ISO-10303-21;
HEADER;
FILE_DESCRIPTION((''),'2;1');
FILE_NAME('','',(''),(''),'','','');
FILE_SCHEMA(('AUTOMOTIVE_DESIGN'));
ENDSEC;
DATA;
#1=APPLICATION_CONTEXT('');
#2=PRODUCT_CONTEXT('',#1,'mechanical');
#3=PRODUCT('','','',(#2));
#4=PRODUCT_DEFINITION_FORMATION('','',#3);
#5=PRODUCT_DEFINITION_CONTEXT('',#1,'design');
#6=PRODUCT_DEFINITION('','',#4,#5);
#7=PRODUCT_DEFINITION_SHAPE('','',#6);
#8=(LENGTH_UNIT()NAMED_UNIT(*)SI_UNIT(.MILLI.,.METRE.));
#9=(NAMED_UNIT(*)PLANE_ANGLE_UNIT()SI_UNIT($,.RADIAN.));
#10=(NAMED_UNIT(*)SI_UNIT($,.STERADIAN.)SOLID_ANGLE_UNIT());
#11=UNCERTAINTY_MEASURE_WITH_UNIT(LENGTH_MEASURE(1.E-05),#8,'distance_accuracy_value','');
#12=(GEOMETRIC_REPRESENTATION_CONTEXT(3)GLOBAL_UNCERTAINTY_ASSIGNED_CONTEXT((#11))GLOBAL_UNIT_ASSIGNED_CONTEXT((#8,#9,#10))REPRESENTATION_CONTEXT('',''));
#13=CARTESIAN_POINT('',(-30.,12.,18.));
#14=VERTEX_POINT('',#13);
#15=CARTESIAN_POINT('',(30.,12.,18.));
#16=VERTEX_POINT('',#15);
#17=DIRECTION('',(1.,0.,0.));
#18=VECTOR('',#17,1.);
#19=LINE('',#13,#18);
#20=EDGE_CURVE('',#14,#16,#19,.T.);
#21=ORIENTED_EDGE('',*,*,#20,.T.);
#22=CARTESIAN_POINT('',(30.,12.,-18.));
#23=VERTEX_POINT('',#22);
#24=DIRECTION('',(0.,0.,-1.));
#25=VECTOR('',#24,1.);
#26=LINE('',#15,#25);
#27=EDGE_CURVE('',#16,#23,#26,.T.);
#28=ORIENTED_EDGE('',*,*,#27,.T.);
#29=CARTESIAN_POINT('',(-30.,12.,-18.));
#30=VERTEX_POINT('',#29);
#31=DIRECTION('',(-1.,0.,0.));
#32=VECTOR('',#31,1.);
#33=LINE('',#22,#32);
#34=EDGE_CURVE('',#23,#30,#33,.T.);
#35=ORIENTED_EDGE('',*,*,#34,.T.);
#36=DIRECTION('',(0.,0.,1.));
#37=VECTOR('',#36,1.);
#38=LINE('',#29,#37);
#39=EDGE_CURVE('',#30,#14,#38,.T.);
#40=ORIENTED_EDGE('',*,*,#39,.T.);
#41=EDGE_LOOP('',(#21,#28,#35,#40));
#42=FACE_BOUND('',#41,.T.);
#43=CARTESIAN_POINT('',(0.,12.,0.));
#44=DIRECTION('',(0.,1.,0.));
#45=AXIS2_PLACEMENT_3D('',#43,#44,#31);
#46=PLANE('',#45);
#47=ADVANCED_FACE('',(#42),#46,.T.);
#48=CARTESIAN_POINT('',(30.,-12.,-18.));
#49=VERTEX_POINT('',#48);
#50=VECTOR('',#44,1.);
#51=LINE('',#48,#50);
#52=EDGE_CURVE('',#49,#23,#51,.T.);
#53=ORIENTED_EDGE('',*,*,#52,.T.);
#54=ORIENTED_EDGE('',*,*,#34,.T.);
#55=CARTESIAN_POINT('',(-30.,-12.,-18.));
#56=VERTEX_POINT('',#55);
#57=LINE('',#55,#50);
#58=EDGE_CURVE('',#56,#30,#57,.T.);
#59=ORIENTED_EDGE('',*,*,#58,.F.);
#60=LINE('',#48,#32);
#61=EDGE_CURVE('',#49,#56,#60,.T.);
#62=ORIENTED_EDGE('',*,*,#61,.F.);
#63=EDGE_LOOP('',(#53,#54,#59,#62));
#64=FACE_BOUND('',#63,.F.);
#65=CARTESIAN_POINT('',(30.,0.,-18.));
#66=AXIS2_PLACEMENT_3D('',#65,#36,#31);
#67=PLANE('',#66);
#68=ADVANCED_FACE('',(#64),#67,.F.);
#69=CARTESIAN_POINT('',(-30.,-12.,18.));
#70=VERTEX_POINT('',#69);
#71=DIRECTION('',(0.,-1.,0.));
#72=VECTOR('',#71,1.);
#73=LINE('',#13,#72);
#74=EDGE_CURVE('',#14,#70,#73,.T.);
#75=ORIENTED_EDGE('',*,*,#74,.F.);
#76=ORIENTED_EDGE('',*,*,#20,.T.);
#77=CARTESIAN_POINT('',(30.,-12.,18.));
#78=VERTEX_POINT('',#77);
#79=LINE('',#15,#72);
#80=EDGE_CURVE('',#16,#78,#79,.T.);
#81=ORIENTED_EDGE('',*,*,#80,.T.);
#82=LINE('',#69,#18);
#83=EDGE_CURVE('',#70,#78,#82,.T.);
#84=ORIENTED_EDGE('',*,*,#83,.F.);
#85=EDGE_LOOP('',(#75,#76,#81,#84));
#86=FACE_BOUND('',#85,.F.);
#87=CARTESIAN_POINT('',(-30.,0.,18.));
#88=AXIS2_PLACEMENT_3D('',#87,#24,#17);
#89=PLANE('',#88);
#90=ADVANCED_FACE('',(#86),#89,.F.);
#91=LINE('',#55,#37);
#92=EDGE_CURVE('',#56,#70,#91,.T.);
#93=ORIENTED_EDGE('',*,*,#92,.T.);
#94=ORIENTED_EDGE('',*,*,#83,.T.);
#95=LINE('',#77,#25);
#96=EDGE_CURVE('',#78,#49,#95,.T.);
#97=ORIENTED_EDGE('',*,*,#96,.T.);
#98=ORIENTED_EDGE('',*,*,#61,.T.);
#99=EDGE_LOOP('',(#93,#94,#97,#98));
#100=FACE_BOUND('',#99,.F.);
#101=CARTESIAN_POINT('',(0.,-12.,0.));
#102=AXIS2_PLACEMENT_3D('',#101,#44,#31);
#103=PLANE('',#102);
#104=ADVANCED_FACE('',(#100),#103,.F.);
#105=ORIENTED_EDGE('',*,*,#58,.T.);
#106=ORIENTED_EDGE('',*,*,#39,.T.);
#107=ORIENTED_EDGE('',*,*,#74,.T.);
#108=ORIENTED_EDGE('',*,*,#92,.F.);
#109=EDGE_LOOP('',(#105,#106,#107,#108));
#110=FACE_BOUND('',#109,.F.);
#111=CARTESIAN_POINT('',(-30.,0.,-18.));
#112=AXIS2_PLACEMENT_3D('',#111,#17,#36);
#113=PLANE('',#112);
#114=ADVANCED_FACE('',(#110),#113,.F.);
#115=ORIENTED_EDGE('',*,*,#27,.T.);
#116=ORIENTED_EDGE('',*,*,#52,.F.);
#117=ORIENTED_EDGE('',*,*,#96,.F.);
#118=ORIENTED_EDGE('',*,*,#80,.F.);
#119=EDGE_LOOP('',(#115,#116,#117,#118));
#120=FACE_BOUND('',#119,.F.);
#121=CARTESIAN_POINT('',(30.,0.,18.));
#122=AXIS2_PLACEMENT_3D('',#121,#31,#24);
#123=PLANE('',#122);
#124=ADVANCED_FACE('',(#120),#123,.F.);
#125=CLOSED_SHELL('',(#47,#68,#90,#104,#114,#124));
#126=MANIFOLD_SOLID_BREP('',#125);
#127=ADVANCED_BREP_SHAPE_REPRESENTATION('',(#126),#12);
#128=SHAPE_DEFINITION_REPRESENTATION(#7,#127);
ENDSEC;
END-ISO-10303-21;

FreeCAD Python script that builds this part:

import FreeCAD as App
import Part
import Sketcher


def add_polygon(sketch, points):
    """Adds a closed chain of lines whose ends are joined by coincident constraints."""
    first, n = sketch.GeometryCount, len(points)
    for a, b in zip(points, points[1:] + points[:1]):
        sketch.addGeometry(Part.LineSegment(App.Vector(*a, 0), App.Vector(*b, 0)), False)
    for i in range(n):
        sketch.addConstraint(Sketcher.Constraint("Coincident", first + i, 2, first + (i + 1) % n, 1))

doc = App.newDocument("Part")
body = doc.addObject("PartDesign::Body", "Body")

sketch1 = doc.addObject("Sketcher::SketchObject", "Sketch")
body.addObject(sketch1)
sketch1.AttachmentSupport = (doc.XZ_Plane, [""])
sketch1.MapMode = "FlatFace"
add_polygon(sketch1, [(30, 18), (30, -18), (-30, -18), (-30, 18)])
sketch1.addConstraint([
    Sketcher.Constraint("Vertical", 0),
    Sketcher.Constraint("Horizontal", 1),
    Sketcher.Constraint("Vertical", 2),
    Sketcher.Constraint("Horizontal", 3),
    Sketcher.Constraint("Symmetric", 0, 2, 2, 2, -1, 1),
    Sketcher.Constraint("DistanceX", 1, 2, 1, 1, 60.0),
    Sketcher.Constraint("DistanceY", 0, 2, 0, 1, 36.0),
])
pad1 = doc.addObject("PartDesign::Pad", "Pad")
body.addObject(pad1)
pad1.Profile = sketch1
pad1.Length = 24
pad1.Midplane = True

doc.recompute()
